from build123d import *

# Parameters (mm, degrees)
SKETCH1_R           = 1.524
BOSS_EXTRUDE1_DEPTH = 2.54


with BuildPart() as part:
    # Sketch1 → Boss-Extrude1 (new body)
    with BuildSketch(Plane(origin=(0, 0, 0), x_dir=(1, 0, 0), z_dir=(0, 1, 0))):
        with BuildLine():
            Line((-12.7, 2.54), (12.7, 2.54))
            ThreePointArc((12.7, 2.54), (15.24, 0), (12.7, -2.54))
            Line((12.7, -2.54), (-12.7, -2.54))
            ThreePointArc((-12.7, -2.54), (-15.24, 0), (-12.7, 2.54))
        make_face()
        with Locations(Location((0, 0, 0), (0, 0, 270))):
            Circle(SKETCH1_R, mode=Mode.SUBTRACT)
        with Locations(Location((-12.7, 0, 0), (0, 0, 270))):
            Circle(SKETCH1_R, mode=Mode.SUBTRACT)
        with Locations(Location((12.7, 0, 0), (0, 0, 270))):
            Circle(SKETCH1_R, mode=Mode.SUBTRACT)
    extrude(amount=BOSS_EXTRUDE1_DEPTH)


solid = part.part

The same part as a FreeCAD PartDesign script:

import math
import FreeCAD as App
import Part
import Sketcher
from FreeCAD import Vector
Q = App.Units.Quantity

doc = App.newDocument("Part")
body = doc.addObject("PartDesign::Body", "Body")

sketch1 = body.newObject("Sketcher::SketchObject", "Sketch")
sketch1.AttachmentSupport = (doc.getObject("XZ_Plane"), [""])
sketch1.MapMode = "FlatFace"
sketch1.addGeometry([
    Part.LineSegment(Vector(12.7, -2.5, 0), Vector(-12.7, -2.5, 0)),
    Part.ArcOfCircle(Part.Circle(Vector(-12.7, 0, 0), Vector(0, 0, 1), 2.5), math.radians(90), math.radians(270)),
    Part.LineSegment(Vector(-12.7, 2.5, 0), Vector(12.7, 2.5, 0)),
    Part.ArcOfCircle(Part.Circle(Vector(12.7, 0, 0), Vector(0, 0, 1), 2.5), math.radians(-90), math.radians(90)),
    Part.Circle(Vector(12.7, 0, 0), Vector(0, 0, 1), 1.5),
    Part.Circle(Vector(0, 0, 0), Vector(0, 0, 1), 1.5),
    Part.Circle(Vector(-12.7, 0, 0), Vector(0, 0, 1), 1.5),
], False)
sketch1.addConstraint([
    Sketcher.Constraint("Tangent", 0, 2, 1, 2),
    Sketcher.Constraint("Tangent", 1, 1, 2, 1),
    Sketcher.Constraint("Tangent", 2, 2, 3, 2),
    Sketcher.Constraint("Tangent", 3, 1, 0, 1),
    Sketcher.Constraint("Horizontal", 0),
    Sketcher.Constraint("Horizontal", 2),
    Sketcher.Constraint("Coincident", 5, 3, -1, 1),
    Sketcher.Constraint("Coincident", 4, 3, 3, 3),
    Sketcher.Constraint("Coincident", 6, 3, 1, 3),
    Sketcher.Constraint("Equal", 4, 5),
    Sketcher.Constraint("Equal", 5, 6),
    Sketcher.Constraint("Symmetric", 1, 3, 3, 3, -1, 1),
    Sketcher.Constraint("Radius", 1, Q("0.1 in")),
    Sketcher.Constraint("Diameter", 4, Q("0.12 in")),
    Sketcher.Constraint("DistanceX", 0, 2, 0, 1, Q("1 in")),
])
pad1 = body.newObject("PartDesign::Pad", "Pad")
pad1.Profile = sketch1
pad1.Length = Q("0.1 in")
pad1.Reversed = True

doc.recompute()
